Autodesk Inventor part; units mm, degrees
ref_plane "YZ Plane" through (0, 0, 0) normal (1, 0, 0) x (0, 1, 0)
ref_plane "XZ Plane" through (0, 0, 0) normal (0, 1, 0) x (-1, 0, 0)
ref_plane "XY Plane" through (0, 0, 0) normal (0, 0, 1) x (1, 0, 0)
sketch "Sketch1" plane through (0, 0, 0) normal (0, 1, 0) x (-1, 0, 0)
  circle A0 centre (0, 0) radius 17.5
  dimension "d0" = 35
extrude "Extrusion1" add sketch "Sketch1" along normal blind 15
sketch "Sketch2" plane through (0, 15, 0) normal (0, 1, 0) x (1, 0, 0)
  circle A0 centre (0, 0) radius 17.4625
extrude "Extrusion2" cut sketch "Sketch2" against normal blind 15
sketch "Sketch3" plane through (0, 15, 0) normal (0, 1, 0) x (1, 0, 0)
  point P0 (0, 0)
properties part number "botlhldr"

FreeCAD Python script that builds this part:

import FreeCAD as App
import Part
import Sketcher
from FreeCAD import Vector
Q = App.Units.Quantity

doc = App.newDocument("Part")
body = doc.addObject("PartDesign::Body", "Body")

# Sketch on XZ plane
sketch1 = doc.addObject("Sketcher::SketchObject", "Sketch")
body.addObject(sketch1)
sketch1.AttachmentSupport = (doc.XZ_Plane, [""])
sketch1.MapMode = "FlatFace"
sketch1.addGeometry(Part.Circle(Vector(0, 0, 0), Vector(0, 0, 1), 18), False)
sketch1.addConstraint(Sketcher.Constraint("Coincident", 0, 3, -1, 1))
sketch1.addConstraint(Sketcher.Constraint("Diameter", 0, Q("35 mm")))
pad1 = doc.addObject("PartDesign::Pad", "Pad")
body.addObject(pad1)
pad1.Profile = sketch1
pad1.Length = 15
pad1.Reversed = True

# Sketch on XZ plane
sketch2 = doc.addObject("Sketcher::SketchObject", "Sketch001")
body.addObject(sketch2)
sketch2.AttachmentSupport = (doc.XZ_Plane, [""])
sketch2.MapMode = "FlatFace"
sketch2.AttachmentOffset = App.Placement(Vector(0, 0, -15), App.Rotation())
sketch2.addGeometry(Part.Circle(Vector(0, 0, 0), Vector(0, 0, 1), 17), False)
sketch2.addConstraint(Sketcher.Constraint("Coincident", 0, 3, -1, 1))
sketch2.addConstraint(Sketcher.Constraint("Diameter", 0, Q("34.925 mm")))
pocket1 = doc.addObject("PartDesign::Pocket", "Pocket")
body.addObject(pocket1)
pocket1.Profile = sketch2
pocket1.Length = 15
pocket1.Reversed = True

doc.recompute()
